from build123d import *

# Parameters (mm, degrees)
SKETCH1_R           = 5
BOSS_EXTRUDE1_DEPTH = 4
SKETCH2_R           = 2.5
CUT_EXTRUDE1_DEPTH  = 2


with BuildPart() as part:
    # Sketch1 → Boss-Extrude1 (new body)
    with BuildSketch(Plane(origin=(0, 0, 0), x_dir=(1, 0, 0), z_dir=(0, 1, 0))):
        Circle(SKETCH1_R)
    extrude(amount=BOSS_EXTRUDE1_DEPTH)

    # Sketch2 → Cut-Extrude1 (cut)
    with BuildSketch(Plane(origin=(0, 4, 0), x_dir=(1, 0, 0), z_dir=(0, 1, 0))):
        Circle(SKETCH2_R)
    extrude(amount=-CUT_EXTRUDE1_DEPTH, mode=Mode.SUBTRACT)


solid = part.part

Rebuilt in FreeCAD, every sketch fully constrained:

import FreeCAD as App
import Part
import Sketcher

V = App.Vector

doc = App.newDocument("Part")
body = doc.addObject("PartDesign::Body", "Body")

sketch1 = doc.addObject("Sketcher::SketchObject", "Sketch")
body.addObject(sketch1)
sketch1.AttachmentSupport = (doc.XZ_Plane, [""])
sketch1.MapMode = "FlatFace"
sketch1.addGeometry(Part.Circle(V(0, 0, 0), V(0, 0, 1), 5), False)
sketch1.addConstraint([
    Sketcher.Constraint("Coincident", 0, 3, -1, 1),
    Sketcher.Constraint("Diameter", 0, 10.0),
])
pad1 = doc.addObject("PartDesign::Pad", "Pad")
body.addObject(pad1)
pad1.Profile = sketch1
pad1.Length = 4
pad1.Reversed = True

sketch2 = doc.addObject("Sketcher::SketchObject", "Sketch001")
body.addObject(sketch2)
sketch2.AttachmentSupport = (doc.XZ_Plane, [""])
sketch2.MapMode = "FlatFace"
sketch2.AttachmentOffset = App.Placement(V(0, 0, -4), App.Rotation())
sketch2.addGeometry(Part.Circle(V(0, 0, 0), V(0, 0, 1), 2.5), False)
sketch2.addConstraint([
    Sketcher.Constraint("Coincident", 0, 3, -1, 1),
    Sketcher.Constraint("Diameter", 0, 5.0),
])
pocket1 = doc.addObject("PartDesign::Pocket", "Pocket")
body.addObject(pocket1)
pocket1.Profile = sketch2
pocket1.Length = 2
pocket1.Reversed = True

doc.recompute()
